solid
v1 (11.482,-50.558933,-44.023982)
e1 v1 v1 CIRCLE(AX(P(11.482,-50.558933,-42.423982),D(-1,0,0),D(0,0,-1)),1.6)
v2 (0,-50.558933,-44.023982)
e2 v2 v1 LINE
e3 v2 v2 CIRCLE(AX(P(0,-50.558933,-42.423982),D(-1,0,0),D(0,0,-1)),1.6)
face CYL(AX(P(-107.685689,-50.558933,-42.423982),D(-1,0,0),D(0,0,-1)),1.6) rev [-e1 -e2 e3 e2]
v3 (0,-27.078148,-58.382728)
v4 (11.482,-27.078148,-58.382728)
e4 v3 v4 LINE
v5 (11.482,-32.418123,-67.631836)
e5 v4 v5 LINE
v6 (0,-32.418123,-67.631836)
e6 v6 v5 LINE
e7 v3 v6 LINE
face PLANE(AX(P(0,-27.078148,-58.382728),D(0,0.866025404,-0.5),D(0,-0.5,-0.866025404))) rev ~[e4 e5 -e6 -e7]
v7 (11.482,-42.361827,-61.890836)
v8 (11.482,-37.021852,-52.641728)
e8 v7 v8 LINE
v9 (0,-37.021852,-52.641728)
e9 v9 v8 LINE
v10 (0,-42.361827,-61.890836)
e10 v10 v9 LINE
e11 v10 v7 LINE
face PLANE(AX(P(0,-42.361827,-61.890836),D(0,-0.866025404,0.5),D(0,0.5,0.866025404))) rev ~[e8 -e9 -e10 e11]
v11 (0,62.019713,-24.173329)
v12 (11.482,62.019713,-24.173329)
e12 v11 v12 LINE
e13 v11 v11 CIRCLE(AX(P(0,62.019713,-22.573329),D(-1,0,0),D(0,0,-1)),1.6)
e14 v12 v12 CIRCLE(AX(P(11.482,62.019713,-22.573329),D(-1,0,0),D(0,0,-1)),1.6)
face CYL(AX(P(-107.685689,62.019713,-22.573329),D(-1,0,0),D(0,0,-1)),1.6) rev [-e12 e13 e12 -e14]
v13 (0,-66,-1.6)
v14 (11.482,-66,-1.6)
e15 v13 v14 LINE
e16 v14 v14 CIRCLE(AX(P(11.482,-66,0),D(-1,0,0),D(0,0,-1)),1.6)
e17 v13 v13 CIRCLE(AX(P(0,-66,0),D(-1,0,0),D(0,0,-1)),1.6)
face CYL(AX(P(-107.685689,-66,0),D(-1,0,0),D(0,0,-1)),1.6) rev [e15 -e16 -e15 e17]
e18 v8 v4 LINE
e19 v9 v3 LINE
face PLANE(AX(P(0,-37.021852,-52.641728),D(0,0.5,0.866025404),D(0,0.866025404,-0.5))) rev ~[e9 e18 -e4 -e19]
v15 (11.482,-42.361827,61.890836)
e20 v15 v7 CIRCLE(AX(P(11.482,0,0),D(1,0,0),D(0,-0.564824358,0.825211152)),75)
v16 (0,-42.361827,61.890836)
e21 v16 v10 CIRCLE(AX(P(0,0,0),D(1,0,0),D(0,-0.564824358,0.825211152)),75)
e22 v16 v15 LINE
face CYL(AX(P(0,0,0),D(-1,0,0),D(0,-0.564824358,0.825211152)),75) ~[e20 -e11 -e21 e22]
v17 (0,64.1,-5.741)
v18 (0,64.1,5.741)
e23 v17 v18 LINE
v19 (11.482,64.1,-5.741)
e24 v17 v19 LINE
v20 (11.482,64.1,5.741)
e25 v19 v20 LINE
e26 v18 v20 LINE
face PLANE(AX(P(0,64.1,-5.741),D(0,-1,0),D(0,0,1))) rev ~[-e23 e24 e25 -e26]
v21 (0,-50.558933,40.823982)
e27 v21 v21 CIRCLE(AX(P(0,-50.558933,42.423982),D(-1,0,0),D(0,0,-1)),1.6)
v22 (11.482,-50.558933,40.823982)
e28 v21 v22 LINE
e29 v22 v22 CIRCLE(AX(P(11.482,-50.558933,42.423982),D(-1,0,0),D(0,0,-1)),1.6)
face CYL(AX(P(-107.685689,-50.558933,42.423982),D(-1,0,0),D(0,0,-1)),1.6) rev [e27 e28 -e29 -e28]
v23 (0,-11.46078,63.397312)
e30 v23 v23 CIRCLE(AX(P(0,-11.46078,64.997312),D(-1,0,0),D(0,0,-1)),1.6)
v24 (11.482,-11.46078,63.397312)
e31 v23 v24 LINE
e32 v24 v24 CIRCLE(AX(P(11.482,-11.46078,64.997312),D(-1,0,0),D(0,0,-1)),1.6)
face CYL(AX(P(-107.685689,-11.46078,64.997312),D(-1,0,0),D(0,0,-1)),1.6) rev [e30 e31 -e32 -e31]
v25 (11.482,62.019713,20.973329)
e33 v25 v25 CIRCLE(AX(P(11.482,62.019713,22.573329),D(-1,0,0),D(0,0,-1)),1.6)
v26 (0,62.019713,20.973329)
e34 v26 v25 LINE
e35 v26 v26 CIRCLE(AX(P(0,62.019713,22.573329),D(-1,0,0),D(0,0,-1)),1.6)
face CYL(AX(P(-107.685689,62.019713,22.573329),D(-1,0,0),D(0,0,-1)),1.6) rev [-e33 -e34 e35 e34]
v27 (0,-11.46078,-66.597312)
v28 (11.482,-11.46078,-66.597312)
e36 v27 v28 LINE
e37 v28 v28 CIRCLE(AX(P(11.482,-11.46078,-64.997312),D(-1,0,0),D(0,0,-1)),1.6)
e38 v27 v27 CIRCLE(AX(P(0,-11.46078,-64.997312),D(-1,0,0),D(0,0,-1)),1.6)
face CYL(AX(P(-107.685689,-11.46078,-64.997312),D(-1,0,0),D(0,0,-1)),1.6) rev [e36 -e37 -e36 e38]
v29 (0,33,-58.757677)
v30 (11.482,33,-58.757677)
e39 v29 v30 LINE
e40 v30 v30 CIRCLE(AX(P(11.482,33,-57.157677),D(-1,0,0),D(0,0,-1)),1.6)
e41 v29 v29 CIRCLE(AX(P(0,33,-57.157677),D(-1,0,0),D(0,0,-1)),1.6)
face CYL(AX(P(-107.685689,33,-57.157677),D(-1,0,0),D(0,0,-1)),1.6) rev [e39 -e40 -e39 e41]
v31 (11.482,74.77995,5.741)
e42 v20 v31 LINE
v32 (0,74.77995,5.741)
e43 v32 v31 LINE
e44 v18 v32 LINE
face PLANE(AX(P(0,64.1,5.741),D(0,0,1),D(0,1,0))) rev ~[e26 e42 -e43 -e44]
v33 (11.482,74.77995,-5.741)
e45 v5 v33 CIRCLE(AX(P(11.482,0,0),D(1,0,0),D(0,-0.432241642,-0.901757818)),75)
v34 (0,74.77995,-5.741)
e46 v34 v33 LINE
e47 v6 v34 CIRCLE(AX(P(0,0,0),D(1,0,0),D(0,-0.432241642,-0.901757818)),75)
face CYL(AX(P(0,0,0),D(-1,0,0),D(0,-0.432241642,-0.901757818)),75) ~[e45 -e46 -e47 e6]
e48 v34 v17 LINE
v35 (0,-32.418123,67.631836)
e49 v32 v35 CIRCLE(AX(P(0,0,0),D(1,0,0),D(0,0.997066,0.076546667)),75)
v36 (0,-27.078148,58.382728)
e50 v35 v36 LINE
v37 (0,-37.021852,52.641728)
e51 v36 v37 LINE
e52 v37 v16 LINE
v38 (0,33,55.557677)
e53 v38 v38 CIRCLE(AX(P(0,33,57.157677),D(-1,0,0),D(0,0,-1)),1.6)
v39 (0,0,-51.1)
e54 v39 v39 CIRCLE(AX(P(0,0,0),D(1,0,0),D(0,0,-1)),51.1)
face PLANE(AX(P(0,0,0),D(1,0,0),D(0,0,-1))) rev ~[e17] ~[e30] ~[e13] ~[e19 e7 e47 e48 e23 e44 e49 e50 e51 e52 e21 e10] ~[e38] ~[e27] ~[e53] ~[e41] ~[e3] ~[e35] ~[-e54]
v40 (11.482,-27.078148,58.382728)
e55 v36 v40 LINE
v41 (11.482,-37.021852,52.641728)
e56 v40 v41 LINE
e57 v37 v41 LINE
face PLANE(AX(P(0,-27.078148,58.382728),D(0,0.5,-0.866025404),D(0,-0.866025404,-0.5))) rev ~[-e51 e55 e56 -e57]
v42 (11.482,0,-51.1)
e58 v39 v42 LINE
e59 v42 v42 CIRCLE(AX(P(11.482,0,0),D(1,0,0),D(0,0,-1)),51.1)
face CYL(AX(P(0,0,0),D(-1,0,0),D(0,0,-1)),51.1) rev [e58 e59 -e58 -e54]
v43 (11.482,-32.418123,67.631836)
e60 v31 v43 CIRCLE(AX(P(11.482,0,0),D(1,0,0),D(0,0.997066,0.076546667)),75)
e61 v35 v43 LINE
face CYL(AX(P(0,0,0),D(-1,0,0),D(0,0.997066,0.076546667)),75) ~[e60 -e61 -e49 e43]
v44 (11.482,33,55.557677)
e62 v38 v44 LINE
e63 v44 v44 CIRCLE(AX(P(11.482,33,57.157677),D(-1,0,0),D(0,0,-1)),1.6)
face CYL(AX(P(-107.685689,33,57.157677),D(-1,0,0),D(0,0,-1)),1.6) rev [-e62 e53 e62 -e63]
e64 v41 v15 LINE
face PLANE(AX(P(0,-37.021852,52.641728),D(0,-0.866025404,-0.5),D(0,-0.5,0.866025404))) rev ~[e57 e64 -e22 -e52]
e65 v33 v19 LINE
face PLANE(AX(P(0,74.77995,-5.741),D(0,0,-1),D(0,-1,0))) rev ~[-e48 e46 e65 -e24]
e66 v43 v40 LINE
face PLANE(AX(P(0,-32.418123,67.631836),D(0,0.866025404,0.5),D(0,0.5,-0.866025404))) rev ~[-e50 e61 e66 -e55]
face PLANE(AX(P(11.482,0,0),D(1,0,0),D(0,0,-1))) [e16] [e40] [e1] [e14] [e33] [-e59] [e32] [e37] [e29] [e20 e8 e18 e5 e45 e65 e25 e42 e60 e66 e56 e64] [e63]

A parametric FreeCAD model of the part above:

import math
import FreeCAD as App
import Part
import Sketcher

V = App.Vector
Q = App.Units.Quantity

doc = App.newDocument("Part")
body = doc.addObject("PartDesign::Body", "Body")

# Sketch on YZ plane
sketch1 = body.newObject("Sketcher::SketchObject", "Sketch")
sketch1.AttachmentSupport = (doc.getObject("YZ_Plane"), [""])
sketch1.MapMode = "FlatFace"
sketch1.addGeometry([
    Part.LineSegment(V(64.1, 5.741, 0), V(74.77995, 5.741, 0)),  # 0
    Part.ArcOfCircle(Part.Circle(V(0, 0, 0), V(0, 0, 1), 75), math.radians(4.390095), math.radians(115.609905)),  # 1
    Part.LineSegment(V(-32.418123, 67.631836, 0), V(-27.078148, 58.382728, 0)),  # 2
    Part.LineSegment(V(-27.078148, 58.382728, 0), V(-37.021852, 52.641728, 0)),  # 3
    Part.LineSegment(V(-37.021852, 52.641728, 0), V(-42.361827, 61.890836, 0)),  # 4
    Part.ArcOfCircle(Part.Circle(V(0, 0, 0), V(0, 0, 1), 75), math.radians(124.390095), math.radians(235.609905)),  # 5
    Part.LineSegment(V(-42.361827, -61.890836, 0), V(-37.021852, -52.641728, 0)),  # 6
    Part.LineSegment(V(-37.021852, -52.641728, 0), V(-27.078148, -58.382728, 0)),  # 7
    Part.LineSegment(V(-27.078148, -58.382728, 0), V(-32.418123, -67.631836, 0)),  # 8
    Part.ArcOfCircle(Part.Circle(V(0, 0, 0), V(0, 0, 1), 75), math.radians(-115.609905), math.radians(-4.390095)),  # 9
    Part.LineSegment(V(74.77995, -5.741, 0), V(64.1, -5.741, 0)),  # 10
    Part.LineSegment(V(64.1, -5.741, 0), V(64.1, 5.741, 0)),  # 11
    Part.Circle(V(0, 0, 0), V(0, 0, 1), 51.1),  # 12
], False)
sketch1.addConstraint([
    Sketcher.Constraint("Coincident", 0, 2, 1, 1),
    Sketcher.Constraint("Coincident", 1, 2, 2, 1),
    Sketcher.Constraint("Coincident", 2, 2, 3, 1),
    Sketcher.Constraint("Coincident", 3, 2, 4, 1),
    Sketcher.Constraint("Coincident", 4, 2, 5, 1),
    Sketcher.Constraint("Coincident", 5, 2, 6, 1),
    Sketcher.Constraint("Coincident", 6, 2, 7, 1),
    Sketcher.Constraint("Coincident", 7, 2, 8, 1),
    Sketcher.Constraint("Coincident", 8, 2, 9, 1),
    Sketcher.Constraint("Coincident", 9, 2, 10, 1),
    Sketcher.Constraint("Coincident", 10, 2, 11, 1),
    Sketcher.Constraint("Coincident", 11, 2, 0, 1),
    Sketcher.Constraint("Horizontal", 0),
    Sketcher.Constraint("Horizontal", 10),
    Sketcher.Constraint("Vertical", 11),
    Sketcher.Constraint("Coincident", 1, 3, -1, 1),
    Sketcher.Constraint("Coincident", 5, 3, -1, 1),
    Sketcher.Constraint("Coincident", 9, 3, -1, 1),
    Sketcher.Constraint("Coincident", 12, 3, -1, 1),
    Sketcher.Constraint("Equal", 1, 5),
    Sketcher.Constraint("Equal", 5, 9),
    Sketcher.Constraint("Symmetric", 3, 2, 6, 2, -1),
    Sketcher.Constraint("Symmetric", 2, 2, 7, 2, -1),
    Sketcher.Constraint("Perpendicular", 2, 3),
    Sketcher.Constraint("Perpendicular", 3, 4),
    Sketcher.Constraint("Perpendicular", 6, 7),
    Sketcher.Constraint("Perpendicular", 7, 8),
    Sketcher.Constraint("Vertical", 0, 2, 9, 2),
    Sketcher.Constraint("Equal", 2, 4),
    Sketcher.Constraint("Radius", 1, Q("75 mm")),
    Sketcher.Constraint("Diameter", 12, Q("102.2 mm")),
    Sketcher.Constraint("Angle", 2, Q("-60 deg")),
    Sketcher.Constraint("DistanceX", -1, 1, 10, 2, Q("64.1 mm")),
    Sketcher.Constraint("DistanceY", 11, 1, 11, 2, Q("11.482 mm")),
    Sketcher.Constraint("Distance", 3, Q("11.482 mm")),
    Sketcher.Constraint("Distance", 2, Q("10.67995 mm")),
])
pad1 = body.newObject("PartDesign::Pad", "Pad")
pad1.Profile = sketch1
pad1.Length = 11.482

# Sketch on YZ plane
sketch2 = body.newObject("Sketcher::SketchObject", "Sketch001")
sketch2.AttachmentSupport = (doc.getObject("YZ_Plane"), [""])
sketch2.MapMode = "FlatFace"
sketch2.addGeometry([
    Part.Circle(V(62.019713, -22.573329, 0), V(0, 0, 1), 1.6),  # 0
    Part.Circle(V(33, -57.157677, 0), V(0, 0, 1), 1.6),  # 1
    Part.Circle(V(-11.46078, -64.997312, 0), V(0, 0, 1), 1.6),  # 2
    Part.Circle(V(-50.558933, -42.423982, 0), V(0, 0, 1), 1.6),  # 3
    Part.Circle(V(-66, 0, 0), V(0, 0, 1), 1.6),  # 4
    Part.Circle(V(-50.558933, 42.423982, 0), V(0, 0, 1), 1.6),  # 5
    Part.Circle(V(-11.46078, 64.997312, 0), V(0, 0, 1), 1.6),  # 6
    Part.Circle(V(33, 57.157677, 0), V(0, 0, 1), 1.6),  # 7
    Part.Circle(V(62.019713, 22.573329, 0), V(0, 0, 1), 1.6),  # 8
], False)
sketch2.addConstraint([
    Sketcher.Constraint("Equal", 0, 1),
    Sketcher.Constraint("Equal", 1, 2),
    Sketcher.Constraint("Equal", 2, 3),
    Sketcher.Constraint("Equal", 3, 4),
    Sketcher.Constraint("Equal", 4, 5),
    Sketcher.Constraint("Equal", 5, 6),
    Sketcher.Constraint("Equal", 6, 7),
    Sketcher.Constraint("Equal", 7, 8),
    Sketcher.Constraint("Symmetric", 3, 3, 5, 3, -1),
    Sketcher.Constraint("Symmetric", 2, 3, 6, 3, -1),
    Sketcher.Constraint("Symmetric", 1, 3, 7, 3, -1),
    Sketcher.Constraint("Symmetric", 0, 3, 8, 3, -1),
    Sketcher.Constraint("PointOnObject", 4, 3, -1),
    Sketcher.Constraint("Diameter", 0, Q("3.2 mm")),
    Sketcher.Constraint("DistanceX", -1, 1, 1, 3, Q("33 mm")),
    Sketcher.Constraint("DistanceX", 4, 3, -1, 1, Q("66 mm")),
    Sketcher.Constraint("DistanceY", 0, 3, -1, 1, Q("22.573329 mm")),
    Sketcher.Constraint("DistanceX", 2, 3, -1, 1, Q("11.46078 mm")),
    Sketcher.Constraint("DistanceY", 2, 3, -1, 1, Q("64.997312 mm")),
    Sketcher.Constraint("DistanceY", 2, 3, 3, 3, Q("22.573329 mm")),
    Sketcher.Constraint("DistanceY", 1, 3, 5, 3, Q("99.581659 mm")),
    Sketcher.Constraint("DistanceX", -1, 1, 0, 3, Q("62.019713 mm")),
    Sketcher.Constraint("DistanceX", 3, 3, -1, 1, Q("50.558933 mm")),
])
pocket1 = body.newObject("PartDesign::Pocket", "Pocket")
pocket1.Profile = sketch2
pocket1.Type = "ThroughAll"
pocket1.Midplane = True

doc.recompute()
